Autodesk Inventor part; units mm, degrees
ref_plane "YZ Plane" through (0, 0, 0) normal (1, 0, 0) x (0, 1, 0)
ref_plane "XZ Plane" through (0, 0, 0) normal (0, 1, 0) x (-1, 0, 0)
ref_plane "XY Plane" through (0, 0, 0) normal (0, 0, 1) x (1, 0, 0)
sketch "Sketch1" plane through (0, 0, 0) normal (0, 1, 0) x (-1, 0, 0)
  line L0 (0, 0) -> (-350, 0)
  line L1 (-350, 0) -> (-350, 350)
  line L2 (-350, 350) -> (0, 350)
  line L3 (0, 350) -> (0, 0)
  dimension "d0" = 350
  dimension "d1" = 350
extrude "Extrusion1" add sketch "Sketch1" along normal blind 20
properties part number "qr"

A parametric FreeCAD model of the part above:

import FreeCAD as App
import Part
import Sketcher

V = App.Vector
Q = App.Units.Quantity

doc = App.newDocument("Part")
body = doc.addObject("PartDesign::Body", "Body")

# Sketch on XZ plane
sketch1 = body.newObject("Sketcher::SketchObject", "Sketch")
sketch1.AttachmentSupport = (doc.getObject("XZ_Plane"), [""])
sketch1.MapMode = "FlatFace"
sketch1.addGeometry(Part.LineSegment(V(350, 0, 0), V(0, 0, 0)), False)
sketch1.addGeometry(Part.LineSegment(V(0, 0, 0), V(0, 350, 0)), False)
sketch1.addGeometry(Part.LineSegment(V(0, 350, 0), V(350, 350, 0)), False)
sketch1.addGeometry(Part.LineSegment(V(350, 350, 0), V(350, 0, 0)), False)
sketch1.addConstraint(Sketcher.Constraint("Coincident", 0, 2, 1, 1))
sketch1.addConstraint(Sketcher.Constraint("Coincident", 1, 2, 2, 1))
sketch1.addConstraint(Sketcher.Constraint("Coincident", 2, 2, 3, 1))
sketch1.addConstraint(Sketcher.Constraint("Coincident", 3, 2, 0, 1))
sketch1.addConstraint(Sketcher.Constraint("Horizontal", 0))
sketch1.addConstraint(Sketcher.Constraint("Vertical", 1))
sketch1.addConstraint(Sketcher.Constraint("Horizontal", 2))
sketch1.addConstraint(Sketcher.Constraint("Vertical", 3))
sketch1.addConstraint(Sketcher.Constraint("Coincident", 0, 2, -1, 1))
sketch1.addConstraint(Sketcher.Constraint("Equal", 2, 1))
sketch1.addConstraint(Sketcher.Constraint("DistanceX", 0, 2, 0, 1, Q("350 mm")))
pad1 = body.newObject("PartDesign::Pad", "Pad")
pad1.Profile = sketch1
pad1.Length = 20
pad1.Reversed = True

doc.recompute()
